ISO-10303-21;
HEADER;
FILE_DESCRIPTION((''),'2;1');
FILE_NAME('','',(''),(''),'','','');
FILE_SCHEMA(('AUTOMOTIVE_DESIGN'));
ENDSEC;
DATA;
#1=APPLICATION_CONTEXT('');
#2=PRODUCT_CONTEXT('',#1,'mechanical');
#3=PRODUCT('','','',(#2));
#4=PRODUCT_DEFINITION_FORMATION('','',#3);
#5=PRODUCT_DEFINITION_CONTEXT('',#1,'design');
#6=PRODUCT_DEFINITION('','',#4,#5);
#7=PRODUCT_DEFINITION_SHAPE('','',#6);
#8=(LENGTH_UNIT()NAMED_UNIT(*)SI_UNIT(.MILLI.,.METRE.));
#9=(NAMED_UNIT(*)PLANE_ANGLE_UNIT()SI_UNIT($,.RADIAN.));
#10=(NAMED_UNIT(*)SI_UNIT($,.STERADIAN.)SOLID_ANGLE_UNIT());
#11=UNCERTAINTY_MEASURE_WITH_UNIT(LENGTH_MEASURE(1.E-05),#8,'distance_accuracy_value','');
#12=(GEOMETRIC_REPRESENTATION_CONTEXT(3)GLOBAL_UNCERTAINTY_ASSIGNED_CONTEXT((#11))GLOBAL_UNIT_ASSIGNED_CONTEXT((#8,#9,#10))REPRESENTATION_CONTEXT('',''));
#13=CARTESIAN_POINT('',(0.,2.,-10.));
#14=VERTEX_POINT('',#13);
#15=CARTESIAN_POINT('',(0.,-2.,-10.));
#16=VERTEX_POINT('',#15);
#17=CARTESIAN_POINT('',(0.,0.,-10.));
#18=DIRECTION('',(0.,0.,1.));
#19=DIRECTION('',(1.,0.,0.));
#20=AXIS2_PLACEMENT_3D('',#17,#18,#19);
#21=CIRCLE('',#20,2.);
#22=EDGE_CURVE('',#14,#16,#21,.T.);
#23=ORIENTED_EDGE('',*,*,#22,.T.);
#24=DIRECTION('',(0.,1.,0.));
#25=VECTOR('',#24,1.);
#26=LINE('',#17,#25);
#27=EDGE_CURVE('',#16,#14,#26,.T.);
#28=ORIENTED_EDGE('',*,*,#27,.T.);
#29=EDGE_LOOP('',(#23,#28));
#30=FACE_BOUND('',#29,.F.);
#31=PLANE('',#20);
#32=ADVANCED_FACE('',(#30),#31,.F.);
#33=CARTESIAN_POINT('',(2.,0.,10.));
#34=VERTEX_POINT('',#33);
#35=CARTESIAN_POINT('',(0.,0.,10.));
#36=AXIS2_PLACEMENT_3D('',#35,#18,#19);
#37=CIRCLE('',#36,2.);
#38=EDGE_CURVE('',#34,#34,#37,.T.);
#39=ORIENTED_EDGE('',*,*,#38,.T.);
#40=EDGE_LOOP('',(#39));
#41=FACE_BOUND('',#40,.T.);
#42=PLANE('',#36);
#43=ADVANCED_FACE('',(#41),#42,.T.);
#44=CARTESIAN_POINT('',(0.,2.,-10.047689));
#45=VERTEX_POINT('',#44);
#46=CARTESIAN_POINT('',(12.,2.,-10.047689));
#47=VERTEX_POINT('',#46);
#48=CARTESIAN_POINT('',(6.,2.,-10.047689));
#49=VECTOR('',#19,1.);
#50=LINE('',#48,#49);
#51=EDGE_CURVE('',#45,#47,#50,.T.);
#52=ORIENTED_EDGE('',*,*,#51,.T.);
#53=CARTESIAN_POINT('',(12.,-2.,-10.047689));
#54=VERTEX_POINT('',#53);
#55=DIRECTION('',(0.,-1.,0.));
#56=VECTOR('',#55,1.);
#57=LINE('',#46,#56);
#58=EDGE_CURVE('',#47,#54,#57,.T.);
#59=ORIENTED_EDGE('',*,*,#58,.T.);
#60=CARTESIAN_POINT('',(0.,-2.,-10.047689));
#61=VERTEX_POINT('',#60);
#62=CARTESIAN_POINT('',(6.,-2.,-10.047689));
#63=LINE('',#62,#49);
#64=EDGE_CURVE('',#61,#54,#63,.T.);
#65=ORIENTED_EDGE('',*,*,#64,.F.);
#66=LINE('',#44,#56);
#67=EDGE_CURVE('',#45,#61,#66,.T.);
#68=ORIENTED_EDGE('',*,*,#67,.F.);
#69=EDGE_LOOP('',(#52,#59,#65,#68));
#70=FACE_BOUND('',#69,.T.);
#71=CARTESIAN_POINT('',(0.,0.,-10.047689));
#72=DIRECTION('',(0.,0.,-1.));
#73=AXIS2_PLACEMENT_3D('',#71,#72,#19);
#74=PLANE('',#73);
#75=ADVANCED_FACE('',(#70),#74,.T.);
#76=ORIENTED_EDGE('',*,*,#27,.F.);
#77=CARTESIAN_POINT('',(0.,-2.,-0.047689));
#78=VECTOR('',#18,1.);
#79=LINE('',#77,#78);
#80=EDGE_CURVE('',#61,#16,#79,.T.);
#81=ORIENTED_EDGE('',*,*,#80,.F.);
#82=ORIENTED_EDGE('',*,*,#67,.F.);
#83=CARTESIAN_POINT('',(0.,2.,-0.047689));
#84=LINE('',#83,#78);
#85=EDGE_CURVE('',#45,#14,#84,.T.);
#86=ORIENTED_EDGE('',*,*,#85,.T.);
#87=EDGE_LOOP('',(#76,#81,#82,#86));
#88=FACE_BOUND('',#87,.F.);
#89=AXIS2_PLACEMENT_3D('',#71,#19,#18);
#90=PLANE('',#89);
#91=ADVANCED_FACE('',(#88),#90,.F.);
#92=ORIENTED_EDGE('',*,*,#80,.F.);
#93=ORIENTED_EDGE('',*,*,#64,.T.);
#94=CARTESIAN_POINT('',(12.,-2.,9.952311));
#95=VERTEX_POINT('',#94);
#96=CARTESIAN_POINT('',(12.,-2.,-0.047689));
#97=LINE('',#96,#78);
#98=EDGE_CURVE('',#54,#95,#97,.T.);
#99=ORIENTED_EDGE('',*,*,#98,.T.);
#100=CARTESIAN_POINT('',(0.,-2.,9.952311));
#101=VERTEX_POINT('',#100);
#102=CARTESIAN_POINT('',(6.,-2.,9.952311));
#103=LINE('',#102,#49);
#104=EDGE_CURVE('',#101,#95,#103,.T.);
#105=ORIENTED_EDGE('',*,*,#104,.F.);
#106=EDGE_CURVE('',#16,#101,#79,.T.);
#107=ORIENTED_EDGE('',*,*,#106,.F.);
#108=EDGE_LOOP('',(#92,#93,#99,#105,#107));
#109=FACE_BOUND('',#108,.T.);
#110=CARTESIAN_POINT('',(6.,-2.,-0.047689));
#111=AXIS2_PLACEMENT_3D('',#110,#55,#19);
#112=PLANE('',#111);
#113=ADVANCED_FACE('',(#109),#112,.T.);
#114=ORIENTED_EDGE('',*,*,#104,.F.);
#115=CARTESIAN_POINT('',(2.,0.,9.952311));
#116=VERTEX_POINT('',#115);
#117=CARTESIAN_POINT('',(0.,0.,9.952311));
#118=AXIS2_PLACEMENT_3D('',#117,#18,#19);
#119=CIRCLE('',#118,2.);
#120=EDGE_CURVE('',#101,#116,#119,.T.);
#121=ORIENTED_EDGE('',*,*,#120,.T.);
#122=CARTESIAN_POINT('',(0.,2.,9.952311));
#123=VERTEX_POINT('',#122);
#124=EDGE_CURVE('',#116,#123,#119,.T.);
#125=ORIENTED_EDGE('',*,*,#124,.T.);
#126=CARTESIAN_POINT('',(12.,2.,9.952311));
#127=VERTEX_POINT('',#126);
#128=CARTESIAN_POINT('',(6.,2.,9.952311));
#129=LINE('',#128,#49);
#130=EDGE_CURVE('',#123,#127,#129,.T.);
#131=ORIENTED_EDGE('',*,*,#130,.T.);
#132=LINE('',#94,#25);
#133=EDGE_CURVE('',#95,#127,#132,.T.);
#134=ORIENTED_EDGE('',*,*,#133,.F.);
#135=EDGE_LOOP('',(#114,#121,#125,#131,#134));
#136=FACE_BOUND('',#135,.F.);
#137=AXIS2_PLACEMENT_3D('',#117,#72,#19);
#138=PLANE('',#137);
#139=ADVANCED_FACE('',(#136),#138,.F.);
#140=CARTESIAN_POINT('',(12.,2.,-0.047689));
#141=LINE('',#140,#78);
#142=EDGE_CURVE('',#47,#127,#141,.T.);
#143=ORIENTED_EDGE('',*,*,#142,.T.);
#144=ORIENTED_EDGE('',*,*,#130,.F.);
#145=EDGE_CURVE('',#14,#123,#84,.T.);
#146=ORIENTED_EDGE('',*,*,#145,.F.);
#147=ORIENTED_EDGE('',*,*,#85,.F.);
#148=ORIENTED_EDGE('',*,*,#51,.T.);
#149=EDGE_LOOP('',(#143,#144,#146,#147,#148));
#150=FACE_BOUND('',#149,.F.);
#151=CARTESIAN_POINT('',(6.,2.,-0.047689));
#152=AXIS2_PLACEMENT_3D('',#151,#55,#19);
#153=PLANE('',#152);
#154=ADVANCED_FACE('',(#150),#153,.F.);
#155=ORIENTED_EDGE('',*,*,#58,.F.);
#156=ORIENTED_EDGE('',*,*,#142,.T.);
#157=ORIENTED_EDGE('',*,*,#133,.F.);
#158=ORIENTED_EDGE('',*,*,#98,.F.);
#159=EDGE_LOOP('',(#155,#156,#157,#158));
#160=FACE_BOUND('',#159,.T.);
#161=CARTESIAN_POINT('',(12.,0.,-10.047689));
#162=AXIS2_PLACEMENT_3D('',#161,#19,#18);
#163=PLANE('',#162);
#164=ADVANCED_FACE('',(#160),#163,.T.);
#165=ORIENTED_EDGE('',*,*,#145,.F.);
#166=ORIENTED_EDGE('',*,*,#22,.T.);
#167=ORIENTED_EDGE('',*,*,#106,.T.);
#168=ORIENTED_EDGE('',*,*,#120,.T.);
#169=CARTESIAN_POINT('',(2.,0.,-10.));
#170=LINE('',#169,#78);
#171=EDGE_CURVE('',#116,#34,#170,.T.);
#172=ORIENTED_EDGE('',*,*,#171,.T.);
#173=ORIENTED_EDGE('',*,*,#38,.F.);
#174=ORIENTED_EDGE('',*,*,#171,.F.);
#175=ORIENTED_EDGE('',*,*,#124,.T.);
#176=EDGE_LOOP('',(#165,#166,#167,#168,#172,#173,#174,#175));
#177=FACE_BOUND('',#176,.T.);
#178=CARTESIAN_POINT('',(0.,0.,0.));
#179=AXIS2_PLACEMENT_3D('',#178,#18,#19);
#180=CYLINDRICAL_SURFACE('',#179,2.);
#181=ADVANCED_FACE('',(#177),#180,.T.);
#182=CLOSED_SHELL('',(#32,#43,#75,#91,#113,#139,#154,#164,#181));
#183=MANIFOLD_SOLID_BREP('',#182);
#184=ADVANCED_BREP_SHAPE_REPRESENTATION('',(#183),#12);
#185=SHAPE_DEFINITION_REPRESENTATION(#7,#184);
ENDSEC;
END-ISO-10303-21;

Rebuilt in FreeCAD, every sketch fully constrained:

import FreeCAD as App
import Part
import Sketcher
from FreeCAD import Vector

doc = App.newDocument("Part")
body = doc.addObject("PartDesign::Body", "Body")

# Sketch on XY plane
sketch1 = body.newObject("Sketcher::SketchObject", "Sketch")
sketch1.AttachmentSupport = (doc.getObject("XY_Plane"), [""])
sketch1.MapMode = "FlatFace"
sketch1.addGeometry(Part.Circle(Vector(0, 0, 0), Vector(0, 0, 1), 2), False)
sketch1.addConstraint([
    Sketcher.Constraint("Coincident", 0, 3, -1, 1),
    Sketcher.Constraint("Diameter", 0, 4.0),
])
pad1 = body.newObject("PartDesign::Pad", "Pad")
pad1.Profile = sketch1
pad1.Length = 20
pad1.Midplane = True

# Sketch on XZ plane
sketch2 = body.newObject("Sketcher::SketchObject", "Sketch001")
sketch2.AttachmentSupport = (doc.getObject("XZ_Plane"), [""])
sketch2.MapMode = "FlatFace"
sketch2.addGeometry([
    Part.LineSegment(Vector(0, 10, 0), Vector(0, -10, 0)),
    Part.LineSegment(Vector(0, -10, 0), Vector(12, -10, 0)),
    Part.LineSegment(Vector(12, -10, 0), Vector(12, 10, 0)),
    Part.LineSegment(Vector(12, 10, 0), Vector(0, 10, 0)),
], False)
sketch2.addConstraint([
    Sketcher.Constraint("Coincident", 0, 2, 1, 1),
    Sketcher.Constraint("Coincident", 1, 2, 2, 1),
    Sketcher.Constraint("Coincident", 2, 2, 3, 1),
    Sketcher.Constraint("Coincident", 3, 2, 0, 1),
    Sketcher.Constraint("Vertical", 0),
    Sketcher.Constraint("Horizontal", 1),
    Sketcher.Constraint("Vertical", 2),
    Sketcher.Constraint("Horizontal", 3),
    Sketcher.Constraint("PointOnObject", 0, 2, -2),
    Sketcher.Constraint("DistanceX", 1, 1, 1, 2, 12.0),
    Sketcher.Constraint("DistanceY", 0, 2, 0, 1, 20.0),
    Sketcher.Constraint("DistanceY", 0, 2, -1, 1, 10.047689),
])
pad2 = body.newObject("PartDesign::Pad", "Pad001")
pad2.Profile = sketch2
pad2.Length = 4
pad2.Midplane = True

doc.recompute()
